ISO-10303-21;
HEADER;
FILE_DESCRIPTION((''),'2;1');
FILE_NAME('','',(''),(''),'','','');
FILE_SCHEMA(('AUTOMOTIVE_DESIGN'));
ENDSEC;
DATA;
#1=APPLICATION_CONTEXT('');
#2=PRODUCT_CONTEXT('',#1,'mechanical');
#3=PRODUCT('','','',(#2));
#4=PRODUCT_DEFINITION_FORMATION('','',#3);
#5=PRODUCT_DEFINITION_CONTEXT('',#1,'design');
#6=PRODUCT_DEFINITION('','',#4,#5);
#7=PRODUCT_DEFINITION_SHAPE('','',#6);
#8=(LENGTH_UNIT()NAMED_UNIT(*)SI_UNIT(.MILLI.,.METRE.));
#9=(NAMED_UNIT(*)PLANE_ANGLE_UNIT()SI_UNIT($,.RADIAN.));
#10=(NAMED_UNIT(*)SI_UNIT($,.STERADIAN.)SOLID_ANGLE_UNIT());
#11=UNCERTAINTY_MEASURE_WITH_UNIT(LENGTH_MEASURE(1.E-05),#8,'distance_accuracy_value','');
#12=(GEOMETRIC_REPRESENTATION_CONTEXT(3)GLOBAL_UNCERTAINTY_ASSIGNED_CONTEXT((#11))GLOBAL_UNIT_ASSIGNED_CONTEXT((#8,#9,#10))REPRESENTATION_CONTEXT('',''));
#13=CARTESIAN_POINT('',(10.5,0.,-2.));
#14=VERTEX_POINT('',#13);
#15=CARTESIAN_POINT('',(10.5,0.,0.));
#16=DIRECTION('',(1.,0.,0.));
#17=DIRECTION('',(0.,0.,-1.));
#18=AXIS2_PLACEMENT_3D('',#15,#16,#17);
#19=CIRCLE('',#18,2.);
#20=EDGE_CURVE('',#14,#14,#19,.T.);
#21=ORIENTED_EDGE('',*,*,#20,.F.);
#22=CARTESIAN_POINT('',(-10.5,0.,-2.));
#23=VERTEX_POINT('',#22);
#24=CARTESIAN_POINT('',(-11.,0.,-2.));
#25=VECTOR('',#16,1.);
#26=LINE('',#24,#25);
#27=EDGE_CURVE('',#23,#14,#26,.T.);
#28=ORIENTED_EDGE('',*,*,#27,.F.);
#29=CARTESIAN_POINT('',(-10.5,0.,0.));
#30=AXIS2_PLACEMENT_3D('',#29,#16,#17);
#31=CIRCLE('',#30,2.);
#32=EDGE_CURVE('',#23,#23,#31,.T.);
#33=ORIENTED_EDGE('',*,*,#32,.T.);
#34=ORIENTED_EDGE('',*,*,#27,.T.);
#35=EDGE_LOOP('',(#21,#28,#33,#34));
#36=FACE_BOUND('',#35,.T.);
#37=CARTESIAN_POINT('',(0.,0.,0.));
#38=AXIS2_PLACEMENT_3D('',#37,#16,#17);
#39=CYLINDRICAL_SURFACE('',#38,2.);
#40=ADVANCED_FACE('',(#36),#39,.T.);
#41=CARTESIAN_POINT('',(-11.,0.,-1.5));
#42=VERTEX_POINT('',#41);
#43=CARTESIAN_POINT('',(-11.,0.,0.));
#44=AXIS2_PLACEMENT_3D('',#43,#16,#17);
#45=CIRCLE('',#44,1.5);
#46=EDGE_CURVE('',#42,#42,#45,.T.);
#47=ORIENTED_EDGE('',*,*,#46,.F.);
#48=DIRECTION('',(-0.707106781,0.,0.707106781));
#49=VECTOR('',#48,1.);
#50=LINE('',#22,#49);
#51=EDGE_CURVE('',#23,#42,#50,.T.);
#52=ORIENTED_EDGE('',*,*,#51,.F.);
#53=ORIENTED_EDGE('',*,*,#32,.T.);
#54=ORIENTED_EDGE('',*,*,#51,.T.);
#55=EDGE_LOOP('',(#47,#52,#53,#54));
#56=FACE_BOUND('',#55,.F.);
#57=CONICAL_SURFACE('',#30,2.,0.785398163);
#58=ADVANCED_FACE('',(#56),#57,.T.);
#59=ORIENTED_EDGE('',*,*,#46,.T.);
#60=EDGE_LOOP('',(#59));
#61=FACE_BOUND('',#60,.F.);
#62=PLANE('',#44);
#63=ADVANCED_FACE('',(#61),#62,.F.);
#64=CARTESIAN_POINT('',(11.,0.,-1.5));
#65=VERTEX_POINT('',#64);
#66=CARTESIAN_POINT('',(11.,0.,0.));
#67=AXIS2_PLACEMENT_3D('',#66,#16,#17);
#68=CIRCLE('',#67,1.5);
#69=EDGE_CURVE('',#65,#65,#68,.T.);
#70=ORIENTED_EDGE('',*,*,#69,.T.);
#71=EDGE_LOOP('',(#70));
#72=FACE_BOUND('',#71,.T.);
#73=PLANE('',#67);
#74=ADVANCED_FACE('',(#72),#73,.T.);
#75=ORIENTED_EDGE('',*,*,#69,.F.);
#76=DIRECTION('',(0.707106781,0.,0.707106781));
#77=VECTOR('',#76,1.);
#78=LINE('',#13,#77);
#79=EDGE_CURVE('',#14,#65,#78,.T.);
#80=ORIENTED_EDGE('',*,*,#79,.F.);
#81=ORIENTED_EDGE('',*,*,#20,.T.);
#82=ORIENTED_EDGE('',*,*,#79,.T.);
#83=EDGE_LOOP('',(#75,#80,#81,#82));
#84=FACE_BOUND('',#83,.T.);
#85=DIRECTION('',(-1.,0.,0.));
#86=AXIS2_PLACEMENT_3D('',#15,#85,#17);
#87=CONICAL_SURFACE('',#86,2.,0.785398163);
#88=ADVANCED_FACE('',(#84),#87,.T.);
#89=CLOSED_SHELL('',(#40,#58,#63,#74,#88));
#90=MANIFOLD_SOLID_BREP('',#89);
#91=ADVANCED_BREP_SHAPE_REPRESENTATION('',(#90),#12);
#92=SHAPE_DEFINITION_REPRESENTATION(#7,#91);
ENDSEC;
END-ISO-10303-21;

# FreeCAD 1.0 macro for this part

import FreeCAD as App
import Part
import Sketcher
Q = App.Units.Quantity


def edges_at(feature, points):
    """Names of the edges that pass closest to the given points."""
    edges = feature.Shape.Edges
    near = lambda p: min(range(len(edges)), key=lambda i: edges[i].distToShape(Part.Vertex(*p))[0])
    return sorted({f"Edge{near(p) + 1}" for p in points})

doc = App.newDocument("Part")
body = doc.addObject("PartDesign::Body", "Body")

# Sketch on YZ plane
sketch1 = body.newObject("Sketcher::SketchObject", "Sketch")
sketch1.AttachmentSupport = (doc.getObject("YZ_Plane"), [""])
sketch1.MapMode = "FlatFace"
sketch1.addGeometry(Part.Circle(App.Vector(0, 0, 0), App.Vector(0, 0, 1), 2), False)
sketch1.addConstraint([
    Sketcher.Constraint("Coincident", 0, 3, -1, 1),
    Sketcher.Constraint("Diameter", 0, Q("4 mm")),
])
pad1 = body.newObject("PartDesign::Pad", "Pad")
pad1.Profile = sketch1
pad1.Length = 22
pad1.Midplane = True
doc.recompute()

chamfer = body.newObject("PartDesign::Chamfer", "Chamfer")
chamfer.Base = (pad1, edges_at(pad1, [(-11, 0, 2), (11, 0, 2)]))
chamfer.Size = 0.5

doc.recompute()
